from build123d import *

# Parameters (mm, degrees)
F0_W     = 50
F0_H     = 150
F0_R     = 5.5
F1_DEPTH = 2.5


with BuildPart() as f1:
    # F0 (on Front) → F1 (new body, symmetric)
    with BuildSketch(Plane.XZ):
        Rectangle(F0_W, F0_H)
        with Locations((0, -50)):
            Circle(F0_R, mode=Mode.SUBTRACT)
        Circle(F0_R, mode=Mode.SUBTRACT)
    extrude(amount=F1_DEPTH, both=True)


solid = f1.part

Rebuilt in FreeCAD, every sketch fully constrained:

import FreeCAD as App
import Part
import Sketcher
from FreeCAD import Vector

doc = App.newDocument("Part")
body = doc.addObject("PartDesign::Body", "Body")

sketch1 = body.newObject("Sketcher::SketchObject", "Sketch")
sketch1.AttachmentSupport = (doc.getObject("XZ_Plane"), [""])
sketch1.MapMode = "FlatFace"
sketch1.addGeometry([
    Part.LineSegment(Vector(-25, 75, 0), Vector(-25, -75, 0)),
    Part.LineSegment(Vector(-25, -75, 0), Vector(25, -75, 0)),
    Part.LineSegment(Vector(25, -75, 0), Vector(25, 75, 0)),
    Part.LineSegment(Vector(25, 75, 0), Vector(-25, 75, 0)),
    Part.Circle(Vector(0, -50, 0), Vector(0, 0, 1), 6),
    Part.Circle(Vector(0, 0, 0), Vector(0, 0, 1), 6),
], False)
sketch1.addConstraint([
    Sketcher.Constraint("Coincident", 0, 2, 1, 1),
    Sketcher.Constraint("Coincident", 1, 2, 2, 1),
    Sketcher.Constraint("Coincident", 2, 2, 3, 1),
    Sketcher.Constraint("Coincident", 3, 2, 0, 1),
    Sketcher.Constraint("Vertical", 0),
    Sketcher.Constraint("Horizontal", 1),
    Sketcher.Constraint("Vertical", 2),
    Sketcher.Constraint("Horizontal", 3),
    Sketcher.Constraint("Coincident", 5, 3, -1, 1),
    Sketcher.Constraint("Equal", 4, 5),
    Sketcher.Constraint("Symmetric", 0, 2, 2, 2, -1, 1),
    Sketcher.Constraint("PointOnObject", 4, 3, -2),
    Sketcher.Constraint("Diameter", 4, 11.0),
    Sketcher.Constraint("DistanceX", 1, 1, 1, 2, 50.0),
    Sketcher.Constraint("DistanceY", 0, 2, 0, 1, 150.0),
    Sketcher.Constraint("DistanceY", 4, 3, -1, 1, 50.0),
])
pad1 = body.newObject("PartDesign::Pad", "Pad")
pad1.Profile = sketch1
pad1.Length = 5
pad1.Midplane = True

doc.recompute()
